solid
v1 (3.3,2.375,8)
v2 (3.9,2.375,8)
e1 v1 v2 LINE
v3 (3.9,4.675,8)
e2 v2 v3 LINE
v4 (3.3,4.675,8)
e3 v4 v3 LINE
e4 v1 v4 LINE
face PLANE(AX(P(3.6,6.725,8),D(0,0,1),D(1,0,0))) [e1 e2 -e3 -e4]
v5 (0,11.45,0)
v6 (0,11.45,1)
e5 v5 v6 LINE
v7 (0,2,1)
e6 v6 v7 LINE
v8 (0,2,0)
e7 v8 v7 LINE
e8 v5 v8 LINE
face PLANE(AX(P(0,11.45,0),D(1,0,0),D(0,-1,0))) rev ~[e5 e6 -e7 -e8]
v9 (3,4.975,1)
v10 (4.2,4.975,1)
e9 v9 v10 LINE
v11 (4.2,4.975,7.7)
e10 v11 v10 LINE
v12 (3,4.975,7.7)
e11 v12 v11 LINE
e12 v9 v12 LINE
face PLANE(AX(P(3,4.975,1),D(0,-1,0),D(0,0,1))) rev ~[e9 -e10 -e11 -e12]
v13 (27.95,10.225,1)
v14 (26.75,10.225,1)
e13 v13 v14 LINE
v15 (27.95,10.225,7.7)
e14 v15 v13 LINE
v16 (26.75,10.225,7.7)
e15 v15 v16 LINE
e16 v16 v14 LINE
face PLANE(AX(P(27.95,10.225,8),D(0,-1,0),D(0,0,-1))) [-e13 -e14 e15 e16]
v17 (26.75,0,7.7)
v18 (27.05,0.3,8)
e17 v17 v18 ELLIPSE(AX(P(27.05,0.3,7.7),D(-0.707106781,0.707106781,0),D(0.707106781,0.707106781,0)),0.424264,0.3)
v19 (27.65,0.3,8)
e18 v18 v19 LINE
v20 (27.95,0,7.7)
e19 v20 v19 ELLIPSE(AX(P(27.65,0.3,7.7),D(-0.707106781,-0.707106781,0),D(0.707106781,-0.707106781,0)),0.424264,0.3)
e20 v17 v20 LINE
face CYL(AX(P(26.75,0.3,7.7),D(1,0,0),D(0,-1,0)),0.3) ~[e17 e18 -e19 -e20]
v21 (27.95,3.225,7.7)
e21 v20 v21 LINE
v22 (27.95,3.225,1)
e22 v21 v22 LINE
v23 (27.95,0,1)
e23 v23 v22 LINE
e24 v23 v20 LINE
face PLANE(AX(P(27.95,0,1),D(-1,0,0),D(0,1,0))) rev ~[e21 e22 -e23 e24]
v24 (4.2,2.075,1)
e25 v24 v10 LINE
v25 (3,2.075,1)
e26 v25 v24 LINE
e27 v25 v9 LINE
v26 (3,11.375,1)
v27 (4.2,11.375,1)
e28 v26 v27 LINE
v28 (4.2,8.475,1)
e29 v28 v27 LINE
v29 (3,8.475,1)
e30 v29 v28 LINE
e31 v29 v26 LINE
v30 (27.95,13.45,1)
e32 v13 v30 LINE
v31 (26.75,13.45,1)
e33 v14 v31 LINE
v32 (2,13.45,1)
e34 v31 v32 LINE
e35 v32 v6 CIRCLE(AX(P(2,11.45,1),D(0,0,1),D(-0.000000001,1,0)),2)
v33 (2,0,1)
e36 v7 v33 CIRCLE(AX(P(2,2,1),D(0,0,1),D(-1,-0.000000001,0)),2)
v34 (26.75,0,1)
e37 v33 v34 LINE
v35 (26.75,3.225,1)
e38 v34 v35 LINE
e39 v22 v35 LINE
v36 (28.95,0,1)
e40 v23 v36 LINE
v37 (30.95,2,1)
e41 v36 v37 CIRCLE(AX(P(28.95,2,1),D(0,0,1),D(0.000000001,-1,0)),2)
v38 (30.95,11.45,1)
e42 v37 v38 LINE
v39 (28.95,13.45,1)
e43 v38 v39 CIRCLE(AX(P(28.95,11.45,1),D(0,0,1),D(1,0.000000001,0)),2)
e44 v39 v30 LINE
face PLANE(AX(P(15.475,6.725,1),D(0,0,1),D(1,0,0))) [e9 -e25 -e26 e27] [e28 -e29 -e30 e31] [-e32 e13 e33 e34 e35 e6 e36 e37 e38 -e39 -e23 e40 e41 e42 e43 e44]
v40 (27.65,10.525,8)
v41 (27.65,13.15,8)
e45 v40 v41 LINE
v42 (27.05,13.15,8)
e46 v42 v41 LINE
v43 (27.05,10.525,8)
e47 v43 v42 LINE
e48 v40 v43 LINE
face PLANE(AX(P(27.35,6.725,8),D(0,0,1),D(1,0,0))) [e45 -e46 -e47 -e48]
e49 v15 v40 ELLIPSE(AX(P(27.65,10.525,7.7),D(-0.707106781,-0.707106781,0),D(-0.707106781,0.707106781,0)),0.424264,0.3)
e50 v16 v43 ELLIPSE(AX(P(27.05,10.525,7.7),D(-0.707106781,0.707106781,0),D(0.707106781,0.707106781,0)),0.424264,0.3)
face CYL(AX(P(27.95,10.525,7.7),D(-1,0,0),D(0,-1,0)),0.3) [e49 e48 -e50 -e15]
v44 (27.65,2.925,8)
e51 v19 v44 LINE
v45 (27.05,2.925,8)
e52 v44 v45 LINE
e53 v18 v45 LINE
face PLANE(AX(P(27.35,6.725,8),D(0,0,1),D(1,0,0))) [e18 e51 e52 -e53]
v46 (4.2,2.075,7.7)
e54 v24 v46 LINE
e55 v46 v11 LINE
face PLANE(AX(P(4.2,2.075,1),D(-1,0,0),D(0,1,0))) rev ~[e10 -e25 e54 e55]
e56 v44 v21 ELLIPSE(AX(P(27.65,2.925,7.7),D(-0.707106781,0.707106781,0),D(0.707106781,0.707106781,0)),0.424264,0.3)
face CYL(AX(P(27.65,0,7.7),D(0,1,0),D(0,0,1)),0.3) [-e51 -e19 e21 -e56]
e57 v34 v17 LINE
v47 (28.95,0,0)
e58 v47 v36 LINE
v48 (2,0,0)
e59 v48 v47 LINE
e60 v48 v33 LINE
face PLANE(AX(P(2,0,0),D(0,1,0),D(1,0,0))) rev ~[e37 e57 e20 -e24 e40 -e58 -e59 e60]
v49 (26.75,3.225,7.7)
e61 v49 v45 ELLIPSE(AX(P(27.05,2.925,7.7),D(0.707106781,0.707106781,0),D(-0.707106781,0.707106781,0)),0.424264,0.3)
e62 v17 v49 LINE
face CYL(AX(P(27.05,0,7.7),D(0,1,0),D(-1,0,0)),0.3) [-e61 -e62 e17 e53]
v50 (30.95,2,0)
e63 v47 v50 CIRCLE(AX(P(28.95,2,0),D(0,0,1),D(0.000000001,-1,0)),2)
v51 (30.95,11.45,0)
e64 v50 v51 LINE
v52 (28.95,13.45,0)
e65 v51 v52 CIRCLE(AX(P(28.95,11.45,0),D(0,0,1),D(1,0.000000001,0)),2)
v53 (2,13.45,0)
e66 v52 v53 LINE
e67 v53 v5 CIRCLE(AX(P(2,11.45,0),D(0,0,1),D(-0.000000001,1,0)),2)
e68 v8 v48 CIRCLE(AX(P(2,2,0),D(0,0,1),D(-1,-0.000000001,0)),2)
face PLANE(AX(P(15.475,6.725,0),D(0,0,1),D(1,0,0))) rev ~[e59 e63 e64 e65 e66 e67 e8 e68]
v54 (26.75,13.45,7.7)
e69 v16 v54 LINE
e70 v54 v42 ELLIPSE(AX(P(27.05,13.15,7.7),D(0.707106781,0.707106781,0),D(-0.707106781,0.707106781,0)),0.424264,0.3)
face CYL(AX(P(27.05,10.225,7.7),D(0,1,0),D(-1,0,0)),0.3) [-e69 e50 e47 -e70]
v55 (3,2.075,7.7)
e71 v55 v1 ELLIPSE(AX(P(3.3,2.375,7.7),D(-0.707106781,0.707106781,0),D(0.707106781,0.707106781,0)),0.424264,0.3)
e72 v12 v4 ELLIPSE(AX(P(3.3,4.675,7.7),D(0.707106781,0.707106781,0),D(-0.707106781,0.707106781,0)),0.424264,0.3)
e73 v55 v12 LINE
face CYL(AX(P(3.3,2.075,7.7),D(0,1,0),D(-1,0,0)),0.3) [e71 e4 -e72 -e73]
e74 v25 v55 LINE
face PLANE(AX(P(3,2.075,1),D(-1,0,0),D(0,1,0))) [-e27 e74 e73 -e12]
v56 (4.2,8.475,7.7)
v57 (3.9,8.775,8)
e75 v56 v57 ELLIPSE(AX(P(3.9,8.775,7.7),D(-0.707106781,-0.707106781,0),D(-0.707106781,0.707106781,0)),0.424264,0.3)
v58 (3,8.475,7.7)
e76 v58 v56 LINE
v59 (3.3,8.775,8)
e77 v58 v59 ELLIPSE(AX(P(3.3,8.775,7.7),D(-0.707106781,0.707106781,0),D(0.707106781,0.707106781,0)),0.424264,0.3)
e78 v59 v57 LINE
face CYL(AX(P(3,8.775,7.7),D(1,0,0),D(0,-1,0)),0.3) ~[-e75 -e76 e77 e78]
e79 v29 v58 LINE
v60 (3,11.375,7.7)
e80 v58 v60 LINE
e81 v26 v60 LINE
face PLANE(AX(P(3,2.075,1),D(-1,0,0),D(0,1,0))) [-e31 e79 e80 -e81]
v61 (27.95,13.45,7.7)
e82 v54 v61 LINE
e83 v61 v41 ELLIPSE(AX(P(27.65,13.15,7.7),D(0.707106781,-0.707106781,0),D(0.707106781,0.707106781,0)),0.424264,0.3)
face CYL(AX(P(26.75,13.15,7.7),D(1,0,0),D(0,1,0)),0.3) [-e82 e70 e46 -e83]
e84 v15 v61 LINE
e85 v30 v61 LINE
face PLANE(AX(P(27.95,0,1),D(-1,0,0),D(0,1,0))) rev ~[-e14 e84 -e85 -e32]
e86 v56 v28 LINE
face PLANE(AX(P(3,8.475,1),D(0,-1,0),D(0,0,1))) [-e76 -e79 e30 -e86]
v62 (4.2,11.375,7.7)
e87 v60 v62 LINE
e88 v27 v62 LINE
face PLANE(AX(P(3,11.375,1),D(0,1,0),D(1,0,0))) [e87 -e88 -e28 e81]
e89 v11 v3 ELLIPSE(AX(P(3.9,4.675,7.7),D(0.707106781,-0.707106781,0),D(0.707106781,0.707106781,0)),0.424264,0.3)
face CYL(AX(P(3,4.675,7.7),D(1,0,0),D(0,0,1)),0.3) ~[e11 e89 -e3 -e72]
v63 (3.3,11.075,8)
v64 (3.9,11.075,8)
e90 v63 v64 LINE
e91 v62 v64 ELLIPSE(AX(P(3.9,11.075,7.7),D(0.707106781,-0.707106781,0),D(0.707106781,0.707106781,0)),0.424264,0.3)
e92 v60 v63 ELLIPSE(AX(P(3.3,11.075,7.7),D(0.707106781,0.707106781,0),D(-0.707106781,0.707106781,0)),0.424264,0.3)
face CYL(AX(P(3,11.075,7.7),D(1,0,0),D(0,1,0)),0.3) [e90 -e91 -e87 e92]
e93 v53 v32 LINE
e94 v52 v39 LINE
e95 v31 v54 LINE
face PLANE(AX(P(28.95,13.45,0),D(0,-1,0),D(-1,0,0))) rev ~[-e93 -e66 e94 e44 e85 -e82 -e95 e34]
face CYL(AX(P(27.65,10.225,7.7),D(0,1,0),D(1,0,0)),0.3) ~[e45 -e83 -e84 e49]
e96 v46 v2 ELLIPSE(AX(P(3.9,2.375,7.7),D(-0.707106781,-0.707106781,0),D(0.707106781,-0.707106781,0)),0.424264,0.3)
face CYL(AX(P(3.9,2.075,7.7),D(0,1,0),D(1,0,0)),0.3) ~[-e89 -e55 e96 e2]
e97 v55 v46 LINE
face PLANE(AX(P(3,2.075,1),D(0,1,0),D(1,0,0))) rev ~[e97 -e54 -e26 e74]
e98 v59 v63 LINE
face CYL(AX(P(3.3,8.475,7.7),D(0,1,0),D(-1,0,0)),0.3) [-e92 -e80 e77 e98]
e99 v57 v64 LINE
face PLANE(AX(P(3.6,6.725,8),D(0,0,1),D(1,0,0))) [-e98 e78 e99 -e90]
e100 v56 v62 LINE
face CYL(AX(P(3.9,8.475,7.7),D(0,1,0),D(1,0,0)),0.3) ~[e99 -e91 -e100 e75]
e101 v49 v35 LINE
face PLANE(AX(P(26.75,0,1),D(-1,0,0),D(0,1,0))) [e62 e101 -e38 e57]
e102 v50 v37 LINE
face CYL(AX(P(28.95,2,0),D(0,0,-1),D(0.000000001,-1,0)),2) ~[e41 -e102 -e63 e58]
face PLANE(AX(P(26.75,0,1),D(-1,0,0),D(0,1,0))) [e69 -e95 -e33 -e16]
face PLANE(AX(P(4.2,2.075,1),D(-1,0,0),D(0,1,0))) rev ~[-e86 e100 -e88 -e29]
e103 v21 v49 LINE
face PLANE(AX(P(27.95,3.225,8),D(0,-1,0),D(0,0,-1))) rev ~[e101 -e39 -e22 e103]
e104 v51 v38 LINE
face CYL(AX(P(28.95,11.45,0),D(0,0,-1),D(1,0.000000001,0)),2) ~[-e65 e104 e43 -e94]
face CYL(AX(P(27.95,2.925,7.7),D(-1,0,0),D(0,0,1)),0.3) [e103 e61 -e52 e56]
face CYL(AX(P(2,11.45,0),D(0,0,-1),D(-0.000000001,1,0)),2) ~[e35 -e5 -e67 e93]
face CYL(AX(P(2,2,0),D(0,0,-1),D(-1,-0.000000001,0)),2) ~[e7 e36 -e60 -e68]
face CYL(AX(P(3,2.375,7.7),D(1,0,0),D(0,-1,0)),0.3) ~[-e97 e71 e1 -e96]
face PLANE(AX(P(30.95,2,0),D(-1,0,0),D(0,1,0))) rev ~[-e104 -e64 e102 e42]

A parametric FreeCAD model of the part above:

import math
import FreeCAD as App
import Part
import Sketcher

V = App.Vector
Q = App.Units.Quantity


def edges_at(feature, points):
    """Names of the edges that pass closest to the given points."""
    edges = feature.Shape.Edges
    near = lambda p: min(range(len(edges)), key=lambda i: edges[i].distToShape(Part.Vertex(*p))[0])
    return sorted({f"Edge{near(p) + 1}" for p in points})

doc = App.newDocument("Part")
body = doc.addObject("PartDesign::Body", "Body")

# Sketch on XY plane
sketch1 = body.newObject("Sketcher::SketchObject", "Sketch")
sketch1.AttachmentSupport = (doc.getObject("XY_Plane"), [""])
sketch1.MapMode = "FlatFace"
sketch1.addGeometry([
    Part.LineSegment(V(2, 0, 0), V(28.9, 0, 0)),  # 0
    Part.ArcOfCircle(Part.Circle(V(28.9, 2, 0), V(0, 0, 1), 2), math.radians(-90), math.radians(0)),  # 1
    Part.LineSegment(V(30.9, 2, 0), V(30.9, 11.4, 0)),  # 2
    Part.ArcOfCircle(Part.Circle(V(28.9, 11.4, 0), V(0, 0, 1), 2), math.radians(0), math.radians(90)),  # 3
    Part.LineSegment(V(28.9, 13.4, 0), V(2, 13.4, 0)),  # 4
    Part.ArcOfCircle(Part.Circle(V(2, 11.4, 0), V(0, 0, 1), 2), math.radians(90), math.radians(180)),  # 5
    Part.LineSegment(V(0, 11.4, 0), V(0, 2, 0)),  # 6
    Part.ArcOfCircle(Part.Circle(V(2, 2, 0), V(0, 0, 1), 2), math.radians(-180), math.radians(-90)),  # 7
], False)
sketch1.addConstraint([
    Sketcher.Constraint("Tangent", 0, 2, 1, 1),
    Sketcher.Constraint("Tangent", 1, 2, 2, 1),
    Sketcher.Constraint("Tangent", 2, 2, 3, 1),
    Sketcher.Constraint("Tangent", 3, 2, 4, 1),
    Sketcher.Constraint("Tangent", 4, 2, 5, 1),
    Sketcher.Constraint("Tangent", 5, 2, 6, 1),
    Sketcher.Constraint("Tangent", 6, 2, 7, 1),
    Sketcher.Constraint("Tangent", 7, 2, 0, 1),
    Sketcher.Constraint("Horizontal", 0),
    Sketcher.Constraint("Vertical", 2),
    Sketcher.Constraint("Horizontal", 4),
    Sketcher.Constraint("Vertical", 6),
    Sketcher.Constraint("Equal", 1, 3),
    Sketcher.Constraint("Equal", 3, 5),
    Sketcher.Constraint("Equal", 5, 7),
    Sketcher.Constraint("PointOnObject", 0, 2, -1),
    Sketcher.Constraint("PointOnObject", 5, 2, -2),
    Sketcher.Constraint("Radius", 1, Q("2 mm")),
    Sketcher.Constraint("DistanceX", 0, 1, 0, 2, Q("26.95 mm")),
    Sketcher.Constraint("DistanceY", 2, 1, 2, 2, Q("9.45 mm")),
])
pad1 = body.newObject("PartDesign::Pad", "Pad")
pad1.Profile = sketch1
pad1.Length = 1

# Sketch on XY plane
sketch2 = body.newObject("Sketcher::SketchObject", "Sketch001")
sketch2.AttachmentSupport = (doc.getObject("XY_Plane"), [""])
sketch2.MapMode = "FlatFace"
sketch2.AttachmentOffset = App.Placement(V(0, 0, 1), App.Rotation())
sketch2.addGeometry([
    Part.LineSegment(V(26.8, 13.4, 0), V(26.8, 0, 0)),  # 0
    Part.LineSegment(V(26.8, 0, 0), V(27.9, 0, 0)),  # 1
    Part.LineSegment(V(27.9, 0, 0), V(27.9, 13.4, 0)),  # 2
    Part.LineSegment(V(27.9, 13.4, 0), V(26.8, 13.4, 0)),  # 3
    Part.LineSegment(V(3, 11.4, 0), V(3, 2.1, 0)),  # 4
    Part.LineSegment(V(3, 2.1, 0), V(4.2, 2.1, 0)),  # 5
    Part.LineSegment(V(4.2, 2.1, 0), V(4.2, 11.4, 0)),  # 6
    Part.LineSegment(V(4.2, 11.4, 0), V(3, 11.4, 0)),  # 7
], False)
sketch2.addConstraint([
    Sketcher.Constraint("Coincident", 0, 2, 1, 1),
    Sketcher.Constraint("Coincident", 1, 2, 2, 1),
    Sketcher.Constraint("Coincident", 2, 2, 3, 1),
    Sketcher.Constraint("Coincident", 3, 2, 0, 1),
    Sketcher.Constraint("Coincident", 4, 2, 5, 1),
    Sketcher.Constraint("Coincident", 5, 2, 6, 1),
    Sketcher.Constraint("Coincident", 6, 2, 7, 1),
    Sketcher.Constraint("Coincident", 7, 2, 4, 1),
    Sketcher.Constraint("Vertical", 0),
    Sketcher.Constraint("Horizontal", 1),
    Sketcher.Constraint("Vertical", 2),
    Sketcher.Constraint("Horizontal", 3),
    Sketcher.Constraint("Vertical", 4),
    Sketcher.Constraint("Horizontal", 5),
    Sketcher.Constraint("Vertical", 6),
    Sketcher.Constraint("Horizontal", 7),
    Sketcher.Constraint("PointOnObject", 0, 2, -1),
    Sketcher.Constraint("Equal", 3, 5),
    Sketcher.Constraint("DistanceX", 1, 1, 1, 2, Q("1.2 mm")),
    Sketcher.Constraint("DistanceY", 4, 2, 4, 1, Q("9.3 mm")),
    Sketcher.Constraint("DistanceX", -1, 1, 4, 2, Q("3 mm")),
    Sketcher.Constraint("DistanceY", 0, 2, 0, 1, Q("13.45 mm")),
    Sketcher.Constraint("DistanceX", -1, 1, 0, 2, Q("26.75 mm")),
    Sketcher.Constraint("DistanceY", -1, 1, 4, 2, Q("2.075 mm")),
])
pad2 = body.newObject("PartDesign::Pad", "Pad001")
pad2.Profile = sketch2
pad2.Length = 7

# Sketch on YZ plane
sketch3 = body.newObject("Sketcher::SketchObject", "Sketch002")
sketch3.AttachmentSupport = (doc.getObject("YZ_Plane"), [""])
sketch3.MapMode = "FlatFace"
sketch3.AttachmentOffset = App.Placement(V(0, 0, 27.95), App.Rotation())
sketch3.addGeometry([
    Part.LineSegment(V(10, 8, 0), V(3, 8, 0)),
    Part.LineSegment(V(3, 8, 0), V(3, 1, 0)),
    Part.LineSegment(V(3, 1, 0), V(10, 1, 0)),
    Part.LineSegment(V(10, 1, 0), V(10, 8, 0)),
], False)
sketch3.addConstraint([
    Sketcher.Constraint("Coincident", 0, 2, 1, 1),
    Sketcher.Constraint("Coincident", 1, 2, 2, 1),
    Sketcher.Constraint("Coincident", 2, 2, 3, 1),
    Sketcher.Constraint("Coincident", 3, 2, 0, 1),
    Sketcher.Constraint("Horizontal", 0),
    Sketcher.Constraint("Vertical", 1),
    Sketcher.Constraint("Horizontal", 2),
    Sketcher.Constraint("Vertical", 3),
    Sketcher.Constraint("Equal", 2, 1),
    Sketcher.Constraint("DistanceX", 0, 2, 0, 1, Q("7 mm")),
    Sketcher.Constraint("DistanceY", -1, 1, 0, 2, Q("8 mm")),
    Sketcher.Constraint("DistanceX", -1, 1, 0, 2, Q("3.225 mm")),
])
pocket1 = body.newObject("PartDesign::Pocket", "Pocket")
pocket1.Profile = sketch3
pocket1.Type = "UpToFirst"

# Sketch on YZ plane
sketch4 = body.newObject("Sketcher::SketchObject", "Sketch003")
sketch4.AttachmentSupport = (doc.getObject("YZ_Plane"), [""])
sketch4.MapMode = "FlatFace"
sketch4.AttachmentOffset = App.Placement(V(0, 0, 3), App.Rotation())
sketch4.addGeometry([
    Part.LineSegment(V(8.5, 1, 0), V(5, 1, 0)),
    Part.LineSegment(V(5, 1, 0), V(5, 8, 0)),
    Part.LineSegment(V(5, 8, 0), V(8.5, 8, 0)),
    Part.LineSegment(V(8.5, 8, 0), V(8.5, 1, 0)),
], False)
sketch4.addConstraint([
    Sketcher.Constraint("Coincident", 0, 2, 1, 1),
    Sketcher.Constraint("Coincident", 1, 2, 2, 1),
    Sketcher.Constraint("Coincident", 2, 2, 3, 1),
    Sketcher.Constraint("Coincident", 3, 2, 0, 1),
    Sketcher.Constraint("Horizontal", 0),
    Sketcher.Constraint("Vertical", 1),
    Sketcher.Constraint("Horizontal", 2),
    Sketcher.Constraint("Vertical", 3),
    Sketcher.Constraint("DistanceY", 1, 1, 1, 2, Q("7 mm")),
    Sketcher.Constraint("DistanceX", 0, 2, 0, 1, Q("3.5 mm")),
    Sketcher.Constraint("DistanceY", -1, 1, 0, 2, Q("1 mm")),
    Sketcher.Constraint("DistanceX", -1, 1, 0, 2, Q("4.975 mm")),
])
pocket2 = body.newObject("PartDesign::Pocket", "Pocket001")
pocket2.Profile = sketch4
pocket2.Type = "UpToFirst"
pocket2.Reversed = True
doc.recompute()

fillet = body.newObject("PartDesign::Fillet", "Fillet")
fillet.Base = (pocket2, edges_at(pocket2, [
    (26.75, 11.838, 8),
    (27.35, 0, 8),
    (27.95, 1.613, 8),
    (27.35, 13.45, 8),
    (3, 9.925, 8),
    (3.6, 2.075, 8),
    (4.2, 3.525, 8),
    (3.6, 11.375, 8),
    (26.75, 1.613, 8),
    (27.95, 11.838, 8),
    (27.35, 3.225, 8),
    (27.35, 10.225, 8),
    (3, 3.525, 8),
    (4.2, 9.925, 8),
    (3.6, 8.475, 8),
    (3.6, 4.975, 8),
]))
fillet.Radius = 0.3

doc.recompute()
